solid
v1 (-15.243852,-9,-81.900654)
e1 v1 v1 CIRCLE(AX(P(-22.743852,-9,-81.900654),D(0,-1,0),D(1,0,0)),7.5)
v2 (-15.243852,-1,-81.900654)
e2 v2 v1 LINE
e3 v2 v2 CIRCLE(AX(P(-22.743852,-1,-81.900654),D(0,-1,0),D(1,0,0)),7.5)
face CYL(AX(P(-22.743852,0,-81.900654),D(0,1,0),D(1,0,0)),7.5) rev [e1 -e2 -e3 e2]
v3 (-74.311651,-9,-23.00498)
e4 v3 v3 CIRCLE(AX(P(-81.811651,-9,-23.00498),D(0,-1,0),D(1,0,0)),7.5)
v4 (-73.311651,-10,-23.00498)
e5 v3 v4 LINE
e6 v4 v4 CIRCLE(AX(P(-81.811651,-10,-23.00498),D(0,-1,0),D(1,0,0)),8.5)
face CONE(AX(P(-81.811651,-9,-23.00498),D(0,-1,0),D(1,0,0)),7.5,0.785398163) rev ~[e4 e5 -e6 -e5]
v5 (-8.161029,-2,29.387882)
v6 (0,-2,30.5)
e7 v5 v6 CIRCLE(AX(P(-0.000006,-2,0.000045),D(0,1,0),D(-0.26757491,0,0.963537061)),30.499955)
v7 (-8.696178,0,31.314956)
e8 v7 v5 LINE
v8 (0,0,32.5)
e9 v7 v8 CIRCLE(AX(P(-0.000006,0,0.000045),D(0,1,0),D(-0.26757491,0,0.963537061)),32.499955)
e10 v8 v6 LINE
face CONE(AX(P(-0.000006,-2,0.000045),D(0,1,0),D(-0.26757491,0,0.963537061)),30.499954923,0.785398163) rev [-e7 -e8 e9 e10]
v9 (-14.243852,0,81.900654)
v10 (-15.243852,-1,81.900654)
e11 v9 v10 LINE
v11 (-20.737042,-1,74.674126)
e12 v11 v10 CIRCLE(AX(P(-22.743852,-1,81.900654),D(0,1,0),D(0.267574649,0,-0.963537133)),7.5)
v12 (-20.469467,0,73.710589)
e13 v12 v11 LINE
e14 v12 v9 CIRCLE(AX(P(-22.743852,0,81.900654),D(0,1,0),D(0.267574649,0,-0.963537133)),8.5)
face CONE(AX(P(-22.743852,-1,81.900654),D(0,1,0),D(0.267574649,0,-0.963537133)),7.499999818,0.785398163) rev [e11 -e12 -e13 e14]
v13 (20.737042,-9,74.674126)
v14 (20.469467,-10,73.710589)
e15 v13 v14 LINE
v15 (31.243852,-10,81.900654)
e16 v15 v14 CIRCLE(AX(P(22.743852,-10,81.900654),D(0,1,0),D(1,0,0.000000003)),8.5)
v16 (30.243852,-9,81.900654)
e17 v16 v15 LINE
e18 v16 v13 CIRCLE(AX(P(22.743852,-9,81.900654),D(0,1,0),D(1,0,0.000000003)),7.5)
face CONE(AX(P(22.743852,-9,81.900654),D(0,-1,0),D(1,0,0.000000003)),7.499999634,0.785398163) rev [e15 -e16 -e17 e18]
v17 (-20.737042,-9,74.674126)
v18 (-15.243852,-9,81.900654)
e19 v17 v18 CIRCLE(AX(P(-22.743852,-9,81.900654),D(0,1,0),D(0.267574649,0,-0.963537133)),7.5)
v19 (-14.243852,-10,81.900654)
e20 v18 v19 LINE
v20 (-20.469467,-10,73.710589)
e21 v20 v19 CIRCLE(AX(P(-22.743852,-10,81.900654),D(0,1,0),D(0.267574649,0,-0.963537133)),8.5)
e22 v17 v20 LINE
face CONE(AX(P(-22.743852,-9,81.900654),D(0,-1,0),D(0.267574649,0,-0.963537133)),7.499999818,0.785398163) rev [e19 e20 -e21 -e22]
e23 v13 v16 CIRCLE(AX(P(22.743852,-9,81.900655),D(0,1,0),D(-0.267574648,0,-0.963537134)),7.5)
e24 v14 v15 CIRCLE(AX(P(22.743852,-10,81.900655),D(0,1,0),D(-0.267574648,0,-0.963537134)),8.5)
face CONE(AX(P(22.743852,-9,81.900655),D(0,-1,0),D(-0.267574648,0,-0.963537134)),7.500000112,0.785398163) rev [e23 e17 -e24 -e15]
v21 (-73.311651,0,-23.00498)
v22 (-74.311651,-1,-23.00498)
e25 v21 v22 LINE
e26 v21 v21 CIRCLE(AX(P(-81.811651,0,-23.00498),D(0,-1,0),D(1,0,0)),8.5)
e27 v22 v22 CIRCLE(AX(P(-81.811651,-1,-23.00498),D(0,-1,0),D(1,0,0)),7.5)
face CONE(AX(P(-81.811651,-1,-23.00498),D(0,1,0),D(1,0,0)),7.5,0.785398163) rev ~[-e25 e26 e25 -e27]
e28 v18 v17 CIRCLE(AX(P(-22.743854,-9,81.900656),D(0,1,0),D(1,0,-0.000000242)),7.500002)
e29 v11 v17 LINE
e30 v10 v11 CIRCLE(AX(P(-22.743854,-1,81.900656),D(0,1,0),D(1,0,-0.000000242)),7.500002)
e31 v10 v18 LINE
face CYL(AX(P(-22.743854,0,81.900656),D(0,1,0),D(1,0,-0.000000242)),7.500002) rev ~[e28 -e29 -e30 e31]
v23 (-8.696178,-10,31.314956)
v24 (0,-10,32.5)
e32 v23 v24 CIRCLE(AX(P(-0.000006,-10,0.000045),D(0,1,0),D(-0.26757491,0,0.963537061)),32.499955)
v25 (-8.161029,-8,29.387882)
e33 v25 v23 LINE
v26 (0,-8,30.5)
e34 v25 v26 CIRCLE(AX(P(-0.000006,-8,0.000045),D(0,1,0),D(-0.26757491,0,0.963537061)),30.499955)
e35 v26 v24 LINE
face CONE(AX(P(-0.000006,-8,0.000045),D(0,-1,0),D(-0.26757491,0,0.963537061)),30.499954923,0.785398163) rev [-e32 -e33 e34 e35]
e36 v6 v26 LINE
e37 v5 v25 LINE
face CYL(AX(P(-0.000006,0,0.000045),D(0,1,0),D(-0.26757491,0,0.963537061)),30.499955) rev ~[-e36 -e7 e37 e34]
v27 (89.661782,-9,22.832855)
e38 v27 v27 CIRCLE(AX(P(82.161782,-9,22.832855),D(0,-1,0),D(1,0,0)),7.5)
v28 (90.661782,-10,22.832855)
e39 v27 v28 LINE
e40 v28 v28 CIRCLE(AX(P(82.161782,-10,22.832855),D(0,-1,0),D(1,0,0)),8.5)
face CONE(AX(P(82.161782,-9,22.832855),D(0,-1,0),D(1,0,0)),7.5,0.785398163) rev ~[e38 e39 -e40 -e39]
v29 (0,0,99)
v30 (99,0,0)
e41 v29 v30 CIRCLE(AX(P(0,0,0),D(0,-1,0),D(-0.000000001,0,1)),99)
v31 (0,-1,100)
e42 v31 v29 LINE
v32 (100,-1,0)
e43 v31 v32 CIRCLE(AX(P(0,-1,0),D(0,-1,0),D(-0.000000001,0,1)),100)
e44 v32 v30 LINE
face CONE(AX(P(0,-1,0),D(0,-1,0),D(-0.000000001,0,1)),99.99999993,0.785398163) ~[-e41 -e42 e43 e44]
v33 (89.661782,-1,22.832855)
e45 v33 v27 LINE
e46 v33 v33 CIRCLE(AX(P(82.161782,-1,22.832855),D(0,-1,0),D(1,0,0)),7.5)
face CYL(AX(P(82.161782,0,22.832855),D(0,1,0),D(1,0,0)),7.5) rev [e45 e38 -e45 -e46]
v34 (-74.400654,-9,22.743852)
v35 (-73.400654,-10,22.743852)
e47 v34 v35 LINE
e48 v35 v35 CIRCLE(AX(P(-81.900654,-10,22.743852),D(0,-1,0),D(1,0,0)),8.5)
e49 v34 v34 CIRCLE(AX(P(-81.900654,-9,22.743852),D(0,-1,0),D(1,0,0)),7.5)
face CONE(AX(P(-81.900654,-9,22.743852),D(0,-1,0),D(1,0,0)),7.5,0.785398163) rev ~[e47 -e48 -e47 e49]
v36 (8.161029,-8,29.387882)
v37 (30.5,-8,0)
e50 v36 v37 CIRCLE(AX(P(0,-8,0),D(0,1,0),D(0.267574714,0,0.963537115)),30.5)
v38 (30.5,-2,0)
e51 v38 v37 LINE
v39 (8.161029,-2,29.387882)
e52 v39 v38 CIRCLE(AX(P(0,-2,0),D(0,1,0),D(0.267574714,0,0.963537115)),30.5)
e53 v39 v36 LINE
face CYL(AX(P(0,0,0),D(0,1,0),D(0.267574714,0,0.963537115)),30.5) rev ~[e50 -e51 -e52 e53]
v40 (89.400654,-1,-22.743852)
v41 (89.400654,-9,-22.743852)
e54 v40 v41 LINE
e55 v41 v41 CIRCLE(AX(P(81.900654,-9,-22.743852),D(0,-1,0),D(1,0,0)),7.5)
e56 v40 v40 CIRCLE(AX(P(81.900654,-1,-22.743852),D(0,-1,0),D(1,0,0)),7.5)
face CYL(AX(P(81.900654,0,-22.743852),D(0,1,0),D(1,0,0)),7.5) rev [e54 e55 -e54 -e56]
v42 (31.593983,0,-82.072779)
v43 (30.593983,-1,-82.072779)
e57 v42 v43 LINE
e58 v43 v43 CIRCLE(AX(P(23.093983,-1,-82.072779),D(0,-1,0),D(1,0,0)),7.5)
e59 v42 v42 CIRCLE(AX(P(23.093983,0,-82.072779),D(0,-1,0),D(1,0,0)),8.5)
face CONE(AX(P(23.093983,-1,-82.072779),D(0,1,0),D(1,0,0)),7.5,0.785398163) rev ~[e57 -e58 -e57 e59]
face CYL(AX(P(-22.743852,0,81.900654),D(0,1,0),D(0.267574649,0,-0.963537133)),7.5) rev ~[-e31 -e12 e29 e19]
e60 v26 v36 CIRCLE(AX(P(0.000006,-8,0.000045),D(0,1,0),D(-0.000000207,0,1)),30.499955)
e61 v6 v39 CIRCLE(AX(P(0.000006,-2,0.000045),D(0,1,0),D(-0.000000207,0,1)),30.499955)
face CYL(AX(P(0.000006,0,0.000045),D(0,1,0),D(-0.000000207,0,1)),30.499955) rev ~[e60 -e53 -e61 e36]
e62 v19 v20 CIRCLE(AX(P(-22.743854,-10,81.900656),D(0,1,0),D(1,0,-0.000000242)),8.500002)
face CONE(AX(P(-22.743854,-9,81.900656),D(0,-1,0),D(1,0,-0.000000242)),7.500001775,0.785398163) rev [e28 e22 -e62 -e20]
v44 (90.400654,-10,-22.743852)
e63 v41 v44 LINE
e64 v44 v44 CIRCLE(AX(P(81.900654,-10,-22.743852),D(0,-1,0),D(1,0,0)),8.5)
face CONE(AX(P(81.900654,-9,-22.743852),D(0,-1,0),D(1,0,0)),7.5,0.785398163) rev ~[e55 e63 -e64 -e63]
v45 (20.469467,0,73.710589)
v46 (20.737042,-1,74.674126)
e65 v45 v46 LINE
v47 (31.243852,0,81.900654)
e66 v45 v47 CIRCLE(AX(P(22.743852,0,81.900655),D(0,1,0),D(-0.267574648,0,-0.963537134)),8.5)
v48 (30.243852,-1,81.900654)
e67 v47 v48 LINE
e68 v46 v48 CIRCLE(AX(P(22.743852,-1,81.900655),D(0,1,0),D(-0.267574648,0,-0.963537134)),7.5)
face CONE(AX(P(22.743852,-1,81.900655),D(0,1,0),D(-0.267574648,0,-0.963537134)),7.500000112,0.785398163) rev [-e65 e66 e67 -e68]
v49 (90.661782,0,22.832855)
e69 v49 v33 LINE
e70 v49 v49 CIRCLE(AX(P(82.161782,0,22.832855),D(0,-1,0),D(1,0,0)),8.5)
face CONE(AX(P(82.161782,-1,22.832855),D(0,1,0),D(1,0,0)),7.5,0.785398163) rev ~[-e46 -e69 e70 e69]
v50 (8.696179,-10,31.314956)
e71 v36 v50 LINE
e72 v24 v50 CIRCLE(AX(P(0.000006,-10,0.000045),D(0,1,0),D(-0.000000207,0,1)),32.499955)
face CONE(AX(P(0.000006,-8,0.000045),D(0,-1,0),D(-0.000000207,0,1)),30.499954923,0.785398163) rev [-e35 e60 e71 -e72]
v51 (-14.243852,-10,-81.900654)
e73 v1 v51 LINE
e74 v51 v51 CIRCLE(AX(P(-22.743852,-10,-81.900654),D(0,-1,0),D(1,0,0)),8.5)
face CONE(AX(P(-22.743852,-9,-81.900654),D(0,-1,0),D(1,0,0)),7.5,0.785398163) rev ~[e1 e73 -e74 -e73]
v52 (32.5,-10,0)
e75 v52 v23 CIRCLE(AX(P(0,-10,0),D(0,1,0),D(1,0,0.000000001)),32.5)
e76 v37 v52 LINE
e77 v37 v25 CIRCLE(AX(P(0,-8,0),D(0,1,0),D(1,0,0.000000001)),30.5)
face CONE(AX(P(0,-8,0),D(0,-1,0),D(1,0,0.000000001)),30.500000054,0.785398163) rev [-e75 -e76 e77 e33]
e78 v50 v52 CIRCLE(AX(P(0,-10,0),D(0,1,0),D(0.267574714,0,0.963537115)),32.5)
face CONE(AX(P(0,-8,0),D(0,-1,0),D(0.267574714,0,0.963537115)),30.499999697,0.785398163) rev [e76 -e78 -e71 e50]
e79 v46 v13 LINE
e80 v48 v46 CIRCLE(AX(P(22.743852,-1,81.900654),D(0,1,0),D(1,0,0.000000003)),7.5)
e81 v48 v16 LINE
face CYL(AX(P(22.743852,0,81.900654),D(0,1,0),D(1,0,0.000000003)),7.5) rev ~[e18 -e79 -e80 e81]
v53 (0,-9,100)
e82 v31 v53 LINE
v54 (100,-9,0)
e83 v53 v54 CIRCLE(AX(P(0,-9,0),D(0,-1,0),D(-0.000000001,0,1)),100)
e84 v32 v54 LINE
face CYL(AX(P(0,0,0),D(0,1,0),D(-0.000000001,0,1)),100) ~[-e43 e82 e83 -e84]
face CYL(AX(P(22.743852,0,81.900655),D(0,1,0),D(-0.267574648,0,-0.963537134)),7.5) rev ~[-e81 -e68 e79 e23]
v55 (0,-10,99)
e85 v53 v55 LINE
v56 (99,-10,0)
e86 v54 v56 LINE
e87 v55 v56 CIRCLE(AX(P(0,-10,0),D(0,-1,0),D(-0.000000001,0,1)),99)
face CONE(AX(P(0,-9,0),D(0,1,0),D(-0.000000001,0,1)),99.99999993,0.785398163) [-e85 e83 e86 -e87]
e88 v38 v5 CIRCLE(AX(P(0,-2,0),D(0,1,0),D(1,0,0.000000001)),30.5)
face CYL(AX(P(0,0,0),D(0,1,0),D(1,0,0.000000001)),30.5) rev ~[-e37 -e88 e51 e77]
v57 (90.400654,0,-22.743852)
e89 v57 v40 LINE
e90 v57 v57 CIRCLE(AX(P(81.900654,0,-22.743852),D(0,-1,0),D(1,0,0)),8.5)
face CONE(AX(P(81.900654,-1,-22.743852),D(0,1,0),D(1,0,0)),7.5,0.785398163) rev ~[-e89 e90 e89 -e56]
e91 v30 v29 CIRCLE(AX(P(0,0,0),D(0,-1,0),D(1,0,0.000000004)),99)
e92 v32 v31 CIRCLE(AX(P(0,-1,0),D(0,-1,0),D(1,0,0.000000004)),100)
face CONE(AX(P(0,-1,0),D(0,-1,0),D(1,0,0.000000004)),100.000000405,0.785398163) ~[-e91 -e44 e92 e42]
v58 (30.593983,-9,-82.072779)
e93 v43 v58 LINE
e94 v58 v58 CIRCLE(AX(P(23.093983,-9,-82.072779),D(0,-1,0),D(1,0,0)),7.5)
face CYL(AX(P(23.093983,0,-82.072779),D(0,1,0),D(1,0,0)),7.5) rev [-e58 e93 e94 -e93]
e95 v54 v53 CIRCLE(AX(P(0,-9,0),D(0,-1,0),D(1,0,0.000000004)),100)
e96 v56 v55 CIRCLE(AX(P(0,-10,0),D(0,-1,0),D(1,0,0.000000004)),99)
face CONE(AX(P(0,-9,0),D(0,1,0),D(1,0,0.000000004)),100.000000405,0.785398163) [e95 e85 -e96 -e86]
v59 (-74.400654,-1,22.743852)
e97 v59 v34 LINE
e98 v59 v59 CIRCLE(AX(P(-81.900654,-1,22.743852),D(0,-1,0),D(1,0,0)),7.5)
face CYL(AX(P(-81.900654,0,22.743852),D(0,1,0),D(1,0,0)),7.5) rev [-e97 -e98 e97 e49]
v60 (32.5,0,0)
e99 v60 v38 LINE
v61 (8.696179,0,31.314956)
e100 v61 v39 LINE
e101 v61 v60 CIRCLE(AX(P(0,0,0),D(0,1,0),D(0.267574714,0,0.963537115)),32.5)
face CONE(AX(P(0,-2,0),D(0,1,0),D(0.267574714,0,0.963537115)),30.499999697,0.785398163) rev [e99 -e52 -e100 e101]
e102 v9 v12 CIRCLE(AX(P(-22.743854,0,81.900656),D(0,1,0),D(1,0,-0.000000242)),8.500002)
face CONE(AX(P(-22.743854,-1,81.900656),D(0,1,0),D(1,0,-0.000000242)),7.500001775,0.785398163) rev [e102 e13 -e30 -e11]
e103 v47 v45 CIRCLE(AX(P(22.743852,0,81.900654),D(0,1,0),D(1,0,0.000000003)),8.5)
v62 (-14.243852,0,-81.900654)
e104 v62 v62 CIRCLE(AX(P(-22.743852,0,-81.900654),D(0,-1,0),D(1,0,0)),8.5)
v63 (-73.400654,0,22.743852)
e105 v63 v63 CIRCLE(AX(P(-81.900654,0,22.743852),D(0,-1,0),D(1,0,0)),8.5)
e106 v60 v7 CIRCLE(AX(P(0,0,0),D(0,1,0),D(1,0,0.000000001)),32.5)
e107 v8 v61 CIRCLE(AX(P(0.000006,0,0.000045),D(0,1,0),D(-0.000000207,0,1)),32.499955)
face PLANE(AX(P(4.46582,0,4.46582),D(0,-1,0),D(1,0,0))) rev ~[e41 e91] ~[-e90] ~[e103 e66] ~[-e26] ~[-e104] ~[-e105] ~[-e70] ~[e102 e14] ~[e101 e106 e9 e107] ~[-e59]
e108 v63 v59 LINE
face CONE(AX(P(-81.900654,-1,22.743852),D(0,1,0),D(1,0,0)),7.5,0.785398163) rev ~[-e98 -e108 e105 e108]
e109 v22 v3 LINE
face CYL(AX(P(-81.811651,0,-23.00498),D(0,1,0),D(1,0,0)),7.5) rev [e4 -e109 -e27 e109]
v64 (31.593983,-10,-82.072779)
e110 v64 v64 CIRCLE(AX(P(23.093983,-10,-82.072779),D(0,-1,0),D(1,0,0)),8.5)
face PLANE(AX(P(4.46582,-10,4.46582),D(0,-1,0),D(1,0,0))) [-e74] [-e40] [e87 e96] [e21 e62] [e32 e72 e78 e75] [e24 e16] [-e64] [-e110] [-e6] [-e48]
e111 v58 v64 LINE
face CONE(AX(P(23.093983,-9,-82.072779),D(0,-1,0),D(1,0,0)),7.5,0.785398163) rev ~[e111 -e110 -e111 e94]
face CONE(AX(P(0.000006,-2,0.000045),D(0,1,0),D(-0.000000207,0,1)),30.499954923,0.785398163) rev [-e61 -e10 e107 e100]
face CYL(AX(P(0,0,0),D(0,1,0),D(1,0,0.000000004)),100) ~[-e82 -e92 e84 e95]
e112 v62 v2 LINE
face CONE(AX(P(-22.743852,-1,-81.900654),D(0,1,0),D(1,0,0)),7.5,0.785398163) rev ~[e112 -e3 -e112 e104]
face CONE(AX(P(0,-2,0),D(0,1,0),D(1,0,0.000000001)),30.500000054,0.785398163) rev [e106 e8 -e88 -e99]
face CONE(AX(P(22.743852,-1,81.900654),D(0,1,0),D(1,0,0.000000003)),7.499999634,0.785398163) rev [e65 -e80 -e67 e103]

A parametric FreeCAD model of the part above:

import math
import FreeCAD as App
import Part
import Sketcher


def edges_at(feature, points):
    """Names of the edges that pass closest to the given points."""
    edges = feature.Shape.Edges
    near = lambda p: min(range(len(edges)), key=lambda i: edges[i].distToShape(Part.Vertex(*p))[0])
    return sorted({f"Edge{near(p) + 1}" for p in points})

doc = App.newDocument("Part")
body = doc.addObject("PartDesign::Body", "Body")

sketch1 = body.newObject("Sketcher::SketchObject", "Sketch")
sketch1.AttachmentSupport = (doc.getObject("XZ_Plane"), [""])
sketch1.MapMode = "FlatFace"
sketch1.addGeometry([
    Part.ArcOfCircle(Part.Circle(App.Vector(0, 0, 0), App.Vector(0, 0, 1), 100), math.radians(90), math.radians(360)),
    Part.ArcOfCircle(Part.Circle(App.Vector(0, 0, 0), App.Vector(0, 0, 1), 100), math.radians(0), math.radians(90)),
    Part.Circle(App.Vector(-22.743852, -81.900654, 0), App.Vector(0, 0, 1), 7.5),
    Part.Circle(App.Vector(-81.811651, -23.00498, 0), App.Vector(0, 0, 1), 7.5),
    Part.Circle(App.Vector(23.093983, -82.072779, 0), App.Vector(0, 0, 1), 7.5),
    Part.Circle(App.Vector(81.900654, -22.743852, 0), App.Vector(0, 0, 1), 7.5),
    Part.Circle(App.Vector(-81.900654, 22.743852, 0), App.Vector(0, 0, 1), 7.5),
    Part.ArcOfCircle(Part.Circle(App.Vector(0, 0, 0), App.Vector(0, 0, 1), 30.5), math.radians(105.519999), math.radians(360)),
    Part.ArcOfCircle(Part.Circle(App.Vector(-0.000006, 0.000045, 0), App.Vector(0, 0, 1), 30.499955), math.radians(89.999988), math.radians(105.520011)),
    Part.ArcOfCircle(Part.Circle(App.Vector(0.000006, 0.000045, 0), App.Vector(0, 0, 1), 30.499955), math.radians(74.479989), math.radians(90.000012)),
    Part.ArcOfCircle(Part.Circle(App.Vector(0, 0, 0), App.Vector(0, 0, 1), 30.5), math.radians(-0.000001), math.radians(74.480001)),
    Part.ArcOfCircle(Part.Circle(App.Vector(-22.743852, 81.900654, 0), App.Vector(0, 0, 1), 7.5), math.radians(-0.000002), math.radians(285.519995)),
    Part.ArcOfCircle(Part.Circle(App.Vector(-22.743854, 81.900656, 0), App.Vector(0, 0, 1), 7.500002), math.radians(-74.479993), math.radians(-0.000014)),
    Part.Circle(App.Vector(82.161782, 22.832855, 0), App.Vector(0, 0, 1), 7.5),
    Part.ArcOfCircle(Part.Circle(App.Vector(22.743852, 81.900655, 0), App.Vector(0, 0, 1), 7.5), math.radians(-0.000005), math.radians(254.480005)),
    Part.ArcOfCircle(Part.Circle(App.Vector(22.743852, 81.900654, 0), App.Vector(0, 0, 1), 7.5), math.radians(-105.52), math.radians(0)),
], False)
sketch1.addConstraint([
    Sketcher.Constraint("Coincident", 0, 1, 1, 2),
    Sketcher.Constraint("Coincident", 1, 1, 0, 2),
    Sketcher.Constraint("Coincident", 7, 1, 8, 2),
    Sketcher.Constraint("Coincident", 8, 1, 9, 2),
    Sketcher.Constraint("Coincident", 9, 1, 10, 2),
    Sketcher.Constraint("Coincident", 10, 1, 7, 2),
    Sketcher.Constraint("Coincident", 11, 1, 12, 2),
    Sketcher.Constraint("Coincident", 12, 1, 11, 2),
    Sketcher.Constraint("Coincident", 14, 1, 15, 2),
    Sketcher.Constraint("Coincident", 15, 1, 14, 2),
    Sketcher.Constraint("Coincident", 0, 3, -1, 1),
    Sketcher.Constraint("Coincident", 7, 3, -1, 1),
    Sketcher.Constraint("Coincident", 10, 3, -1, 1),
    Sketcher.Constraint("PointOnObject", 0, 1, -2),
    Sketcher.Constraint("PointOnObject", 1, 1, -1),
    Sketcher.Constraint("PointOnObject", 8, 1, -2),
    Sketcher.Constraint("PointOnObject", 10, 1, -1),
    Sketcher.Constraint("Diameter", 2, 15.0),
    Sketcher.Constraint("Diameter", 3, 15.0),
    Sketcher.Constraint("Diameter", 4, 15.0),
    Sketcher.Constraint("Diameter", 5, 15.0),
    Sketcher.Constraint("Diameter", 6, 15.0),
    Sketcher.Constraint("Diameter", 13, 15.0),
    Sketcher.Constraint("Radius", 0, 100.0),
    Sketcher.Constraint("Radius", 1, 100.0),
    Sketcher.Constraint("Radius", 7, 30.5),
    Sketcher.Constraint("Radius", 11, 7.5),
    Sketcher.Constraint("Radius", 12, 7.500002),
    Sketcher.Constraint("Radius", 14, 7.5),
    Sketcher.Constraint("Radius", 15, 7.5),
    Sketcher.Constraint("DistanceY", -1, 1, 8, 1, 30.5),
    Sketcher.Constraint("Radius", 8, 30.499955),
    Sketcher.Constraint("Radius", 9, 30.499955),
    Sketcher.Constraint("DistanceX", 3, 3, 2, 3, 59.067799),
    Sketcher.Constraint("DistanceY", 4, 3, 3, 3, 59.067799),
    Sketcher.Constraint("DistanceX", 6, 3, 12, 3, 59.1568),
    Sketcher.Constraint("DistanceY", 13, 3, 14, 3, 59.0678),
    Sketcher.Constraint("DistanceX", 3, 3, -1, 1, 81.811651),
    Sketcher.Constraint("DistanceY", 3, 3, -1, 1, 23.00498),
    Sketcher.Constraint("DistanceX", 11, 3, -1, 1, 22.743852),
    Sketcher.Constraint("DistanceX", -1, 1, 14, 3, 22.743852),
    Sketcher.Constraint("DistanceX", 7, 1, -1, 1, 8.161029),
    Sketcher.Constraint("DistanceX", -1, 1, 9, 1, 8.161029),
    Sketcher.Constraint("DistanceX", 12, 1, -1, 1, 20.737042),
    Sketcher.Constraint("DistanceX", -1, 1, 15, 1, 20.737042),
    Sketcher.Constraint("DistanceX", 4, 3, 5, 3, 58.806671),
    Sketcher.Constraint("DistanceY", 5, 3, 1, 3, 22.743852),
    Sketcher.Constraint("DistanceY", 0, 3, 6, 3, 22.743852),
    Sketcher.Constraint("DistanceY", 8, 3, 11, 3, 81.900609),
    Sketcher.Constraint("DistanceY", 9, 3, 13, 3, 22.83281),
    Sketcher.Constraint("DistanceX", 8, 3, 13, 3, 82.161788),
    Sketcher.Constraint("DistanceY", 12, 1, 11, 1, 7.226528),
    Sketcher.Constraint("DistanceY", 12, 1, 14, 1, 7.226528),
    Sketcher.Constraint("DistanceY", 2, 3, -1, 1, 81.900654),
    Sketcher.Constraint("DistanceX", -1, 1, 4, 3, 23.093983),
])
pad1 = body.newObject("PartDesign::Pad", "Pad")
pad1.Profile = sketch1
pad1.Length = 10
doc.recompute()

chamfer = body.newObject("PartDesign::Chamfer", "Chamfer")
chamfer.Base = (pad1, edges_at(pad1, [(-70.711, 0, -70.711)]))
chamfer.ChamferType = "Two distances"
chamfer.Size = 1
chamfer.Size2 = 1
doc.recompute()

chamfer2 = body.newObject("PartDesign::Chamfer", "Chamfer001")
chamfer2.Base = (chamfer, edges_at(chamfer, [(-70.711, -10, -70.711)]))
chamfer2.ChamferType = "Two distances"
chamfer2.Size = 1
chamfer2.Size2 = 1
doc.recompute()

chamfer3 = body.newObject("PartDesign::Chamfer", "Chamfer002")
chamfer3.Base = (chamfer2, edges_at(chamfer2, [(-18.457, 0, -24.281)]))
chamfer3.ChamferType = "Two distances"
chamfer3.Size = 2
chamfer3.Size2 = 2
doc.recompute()

chamfer4 = body.newObject("PartDesign::Chamfer", "Chamfer003")
chamfer4.Base = (chamfer3, edges_at(chamfer3, [(-18.457, -10, -24.281)]))
chamfer4.ChamferType = "Two distances"
chamfer4.Size = 2
chamfer4.Size2 = 2
doc.recompute()

chamfer5 = body.newObject("PartDesign::Chamfer", "Chamfer004")
chamfer5.Base = (chamfer4, edges_at(chamfer4, [
    (18.205, 0, 87.871),
    (-28.715, 0, 86.439),
    (-89.401, 0, 22.744),
    (-89.312, 0, -23.005),
    (-30.244, 0, -81.901),
    (15.594, 0, -82.073),
    (74.401, 0, -22.744),
    (74.662, 0, 22.833),
]))
chamfer5.ChamferType = "Two distances"
chamfer5.Size = 1
chamfer5.Size2 = 1
doc.recompute()

chamfer6 = body.newObject("PartDesign::Chamfer", "Chamfer005")
chamfer6.Base = (chamfer5, edges_at(chamfer5, [
    (-28.715, -10, 86.439),
    (18.205, -10, 87.871),
    (74.662, -10, 22.833),
    (74.401, -10, -22.744),
    (15.594, -10, -82.073),
    (-30.244, -10, -81.901),
    (-89.401, -10, 22.744),
    (-89.312, -10, -23.005),
]))
chamfer6.ChamferType = "Two distances"
chamfer6.Size = 1
chamfer6.Size2 = 1

doc.recompute()
